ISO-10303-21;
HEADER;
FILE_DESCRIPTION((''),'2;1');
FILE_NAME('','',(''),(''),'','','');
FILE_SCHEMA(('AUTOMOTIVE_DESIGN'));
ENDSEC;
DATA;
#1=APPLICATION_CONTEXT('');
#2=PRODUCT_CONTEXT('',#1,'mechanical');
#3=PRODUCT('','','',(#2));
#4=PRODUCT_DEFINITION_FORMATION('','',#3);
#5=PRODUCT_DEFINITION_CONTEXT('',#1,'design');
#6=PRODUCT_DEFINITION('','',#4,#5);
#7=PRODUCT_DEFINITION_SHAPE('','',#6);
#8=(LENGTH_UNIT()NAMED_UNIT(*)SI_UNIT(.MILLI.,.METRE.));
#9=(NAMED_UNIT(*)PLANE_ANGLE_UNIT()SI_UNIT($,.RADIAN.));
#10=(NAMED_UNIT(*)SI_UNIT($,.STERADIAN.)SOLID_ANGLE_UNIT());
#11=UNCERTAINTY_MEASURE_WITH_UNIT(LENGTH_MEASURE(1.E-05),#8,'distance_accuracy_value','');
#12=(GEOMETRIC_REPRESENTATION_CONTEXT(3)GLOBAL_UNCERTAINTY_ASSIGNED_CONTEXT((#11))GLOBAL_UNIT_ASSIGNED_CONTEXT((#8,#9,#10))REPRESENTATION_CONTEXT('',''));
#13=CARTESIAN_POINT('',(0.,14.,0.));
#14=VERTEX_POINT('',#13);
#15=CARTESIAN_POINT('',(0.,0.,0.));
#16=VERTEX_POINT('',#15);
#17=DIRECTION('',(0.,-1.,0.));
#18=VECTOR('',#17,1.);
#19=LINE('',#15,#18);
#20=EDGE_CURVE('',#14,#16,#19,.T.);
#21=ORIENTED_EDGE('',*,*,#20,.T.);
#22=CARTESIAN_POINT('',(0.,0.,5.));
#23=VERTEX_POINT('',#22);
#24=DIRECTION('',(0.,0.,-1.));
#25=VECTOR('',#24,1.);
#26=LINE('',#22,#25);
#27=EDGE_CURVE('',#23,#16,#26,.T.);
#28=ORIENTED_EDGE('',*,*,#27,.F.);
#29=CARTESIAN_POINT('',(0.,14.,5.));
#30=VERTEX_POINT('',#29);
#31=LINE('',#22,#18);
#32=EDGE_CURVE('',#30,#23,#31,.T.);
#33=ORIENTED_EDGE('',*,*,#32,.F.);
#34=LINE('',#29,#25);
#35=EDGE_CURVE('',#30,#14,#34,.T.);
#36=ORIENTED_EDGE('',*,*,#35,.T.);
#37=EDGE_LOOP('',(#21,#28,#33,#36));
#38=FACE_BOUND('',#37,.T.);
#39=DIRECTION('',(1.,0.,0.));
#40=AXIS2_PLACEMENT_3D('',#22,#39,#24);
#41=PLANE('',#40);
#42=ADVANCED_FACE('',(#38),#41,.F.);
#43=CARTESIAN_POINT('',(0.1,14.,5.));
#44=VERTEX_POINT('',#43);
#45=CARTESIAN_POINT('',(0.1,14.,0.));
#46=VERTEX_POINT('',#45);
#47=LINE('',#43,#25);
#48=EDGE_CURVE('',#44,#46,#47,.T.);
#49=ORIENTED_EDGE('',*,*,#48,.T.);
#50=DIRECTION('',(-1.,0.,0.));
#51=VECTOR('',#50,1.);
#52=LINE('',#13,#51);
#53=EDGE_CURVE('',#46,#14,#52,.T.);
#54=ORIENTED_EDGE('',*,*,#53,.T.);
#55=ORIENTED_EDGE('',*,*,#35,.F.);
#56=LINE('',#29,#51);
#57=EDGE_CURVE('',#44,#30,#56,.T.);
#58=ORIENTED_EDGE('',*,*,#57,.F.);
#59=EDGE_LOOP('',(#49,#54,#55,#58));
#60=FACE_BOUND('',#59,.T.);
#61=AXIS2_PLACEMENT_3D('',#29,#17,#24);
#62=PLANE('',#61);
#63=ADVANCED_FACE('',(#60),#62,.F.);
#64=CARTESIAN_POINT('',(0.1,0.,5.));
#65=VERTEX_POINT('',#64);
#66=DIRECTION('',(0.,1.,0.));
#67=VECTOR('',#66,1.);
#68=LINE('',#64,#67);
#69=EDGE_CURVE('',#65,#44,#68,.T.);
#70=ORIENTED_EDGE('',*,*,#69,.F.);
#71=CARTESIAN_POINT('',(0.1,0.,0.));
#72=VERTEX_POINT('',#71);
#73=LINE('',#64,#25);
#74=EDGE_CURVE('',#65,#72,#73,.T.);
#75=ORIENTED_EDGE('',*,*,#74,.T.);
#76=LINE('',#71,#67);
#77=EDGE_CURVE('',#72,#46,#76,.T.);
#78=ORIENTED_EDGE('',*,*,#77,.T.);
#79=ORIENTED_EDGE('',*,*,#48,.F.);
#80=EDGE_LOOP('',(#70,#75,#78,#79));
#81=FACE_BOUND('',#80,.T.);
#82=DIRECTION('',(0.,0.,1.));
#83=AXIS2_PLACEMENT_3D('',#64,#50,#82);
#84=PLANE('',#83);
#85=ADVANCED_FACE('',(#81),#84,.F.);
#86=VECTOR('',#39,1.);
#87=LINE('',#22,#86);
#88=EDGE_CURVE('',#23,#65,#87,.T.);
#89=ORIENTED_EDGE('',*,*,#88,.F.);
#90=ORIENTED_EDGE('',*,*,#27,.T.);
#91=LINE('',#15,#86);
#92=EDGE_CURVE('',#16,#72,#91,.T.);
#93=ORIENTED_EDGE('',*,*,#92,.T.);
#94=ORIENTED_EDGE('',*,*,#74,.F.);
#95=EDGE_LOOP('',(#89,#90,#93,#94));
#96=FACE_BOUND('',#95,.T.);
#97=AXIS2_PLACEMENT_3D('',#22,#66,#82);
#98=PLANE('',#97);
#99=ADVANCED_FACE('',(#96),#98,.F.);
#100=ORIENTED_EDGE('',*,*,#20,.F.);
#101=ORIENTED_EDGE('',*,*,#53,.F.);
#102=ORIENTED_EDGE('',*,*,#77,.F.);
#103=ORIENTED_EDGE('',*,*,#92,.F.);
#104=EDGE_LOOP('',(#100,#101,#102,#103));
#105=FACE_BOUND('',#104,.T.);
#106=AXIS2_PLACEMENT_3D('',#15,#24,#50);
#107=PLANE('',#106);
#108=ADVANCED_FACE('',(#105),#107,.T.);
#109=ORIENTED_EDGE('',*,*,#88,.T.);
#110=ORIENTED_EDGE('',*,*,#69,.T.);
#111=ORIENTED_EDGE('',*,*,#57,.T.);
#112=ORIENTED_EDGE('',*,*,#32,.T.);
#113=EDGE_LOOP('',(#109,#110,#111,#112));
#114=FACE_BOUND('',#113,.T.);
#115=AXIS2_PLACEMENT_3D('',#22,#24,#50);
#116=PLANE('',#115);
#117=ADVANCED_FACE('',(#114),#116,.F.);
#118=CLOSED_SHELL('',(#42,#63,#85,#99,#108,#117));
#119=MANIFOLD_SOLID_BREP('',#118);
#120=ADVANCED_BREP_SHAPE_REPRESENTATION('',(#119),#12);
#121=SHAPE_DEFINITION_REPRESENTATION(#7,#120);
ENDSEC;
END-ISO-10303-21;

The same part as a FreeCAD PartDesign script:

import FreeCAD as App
import Part
import Sketcher

V = App.Vector
Q = App.Units.Quantity


def add_polygon(sketch, points):
    """Adds a closed chain of lines whose ends are joined by coincident constraints."""
    first, n = sketch.GeometryCount, len(points)
    for a, b in zip(points, points[1:] + points[:1]):
        sketch.addGeometry(Part.LineSegment(App.Vector(*a, 0), App.Vector(*b, 0)), False)
    for i in range(n):
        sketch.addConstraint(Sketcher.Constraint("Coincident", first + i, 2, first + (i + 1) % n, 1))

doc = App.newDocument("Part")
body = doc.addObject("PartDesign::Body", "Body")

# Sketch on XY plane
sketch1 = body.newObject("Sketcher::SketchObject", "Sketch")
sketch1.AttachmentSupport = (doc.getObject("XY_Plane"), [""])
sketch1.MapMode = "FlatFace"
add_polygon(sketch1, [(0, 14), (0, 0), (0.1, 0), (0.1, 14)])  # lines 0-3
sketch1.addConstraint([
    Sketcher.Constraint("Vertical", 0),
    Sketcher.Constraint("Horizontal", 1),
    Sketcher.Constraint("Vertical", 2),
    Sketcher.Constraint("Horizontal", 3),
    Sketcher.Constraint("Coincident", 0, 2, -1, 1),
    Sketcher.Constraint("DistanceY", 0, 2, 0, 1, Q("14 mm")),
    Sketcher.Constraint("DistanceX", 1, 1, 1, 2, Q("0.1 mm")),
])
pad1 = body.newObject("PartDesign::Pad", "Pad")
pad1.Profile = sketch1
pad1.Length = 5

doc.recompute()
